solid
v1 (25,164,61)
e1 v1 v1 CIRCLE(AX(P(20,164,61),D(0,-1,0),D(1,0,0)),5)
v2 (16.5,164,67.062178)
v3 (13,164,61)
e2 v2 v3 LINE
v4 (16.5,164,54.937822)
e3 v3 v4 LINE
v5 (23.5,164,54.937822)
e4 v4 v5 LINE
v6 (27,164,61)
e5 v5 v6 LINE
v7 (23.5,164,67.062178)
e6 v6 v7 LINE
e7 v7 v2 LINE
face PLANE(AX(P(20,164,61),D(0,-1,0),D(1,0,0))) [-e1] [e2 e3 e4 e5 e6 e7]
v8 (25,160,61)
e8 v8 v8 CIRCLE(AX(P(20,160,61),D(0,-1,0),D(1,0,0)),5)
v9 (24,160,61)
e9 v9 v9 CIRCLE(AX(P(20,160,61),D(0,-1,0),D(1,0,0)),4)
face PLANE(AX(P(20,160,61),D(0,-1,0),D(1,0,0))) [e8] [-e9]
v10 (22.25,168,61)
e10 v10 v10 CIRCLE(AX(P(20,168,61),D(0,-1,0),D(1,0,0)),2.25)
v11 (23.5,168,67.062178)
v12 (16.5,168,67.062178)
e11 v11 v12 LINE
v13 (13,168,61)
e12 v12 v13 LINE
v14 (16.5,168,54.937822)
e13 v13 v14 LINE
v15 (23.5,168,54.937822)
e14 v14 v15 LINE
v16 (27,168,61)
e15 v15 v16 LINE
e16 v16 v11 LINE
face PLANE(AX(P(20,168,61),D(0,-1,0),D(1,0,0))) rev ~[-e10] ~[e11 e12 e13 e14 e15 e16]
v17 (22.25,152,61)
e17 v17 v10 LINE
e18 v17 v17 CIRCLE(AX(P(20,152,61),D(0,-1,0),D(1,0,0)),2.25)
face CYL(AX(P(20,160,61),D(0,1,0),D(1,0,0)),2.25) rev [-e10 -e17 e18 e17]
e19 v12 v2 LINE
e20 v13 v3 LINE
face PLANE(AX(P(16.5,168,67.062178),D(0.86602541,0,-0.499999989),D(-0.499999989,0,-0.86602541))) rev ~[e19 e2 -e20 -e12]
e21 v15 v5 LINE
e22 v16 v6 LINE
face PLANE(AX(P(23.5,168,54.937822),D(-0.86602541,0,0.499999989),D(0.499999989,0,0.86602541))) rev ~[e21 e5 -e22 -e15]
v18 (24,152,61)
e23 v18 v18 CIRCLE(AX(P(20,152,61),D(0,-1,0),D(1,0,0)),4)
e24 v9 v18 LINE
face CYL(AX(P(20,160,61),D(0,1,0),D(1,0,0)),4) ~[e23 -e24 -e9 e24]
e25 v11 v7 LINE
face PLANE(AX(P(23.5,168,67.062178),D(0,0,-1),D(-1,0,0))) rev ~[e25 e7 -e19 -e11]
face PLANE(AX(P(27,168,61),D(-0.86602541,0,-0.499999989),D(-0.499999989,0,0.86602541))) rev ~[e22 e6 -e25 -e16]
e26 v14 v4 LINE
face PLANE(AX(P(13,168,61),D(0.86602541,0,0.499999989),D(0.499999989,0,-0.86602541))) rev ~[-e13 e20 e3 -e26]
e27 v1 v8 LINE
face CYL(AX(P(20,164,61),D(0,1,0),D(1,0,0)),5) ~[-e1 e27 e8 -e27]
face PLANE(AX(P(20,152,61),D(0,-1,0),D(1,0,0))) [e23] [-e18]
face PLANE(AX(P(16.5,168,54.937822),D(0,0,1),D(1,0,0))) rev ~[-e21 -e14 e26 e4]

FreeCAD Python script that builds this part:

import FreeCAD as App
import Part
import Sketcher
from FreeCAD import Vector
Q = App.Units.Quantity


def add_polygon(sketch, points):
    """Adds a closed chain of lines whose ends are joined by coincident constraints."""
    first, n = sketch.GeometryCount, len(points)
    for a, b in zip(points, points[1:] + points[:1]):
        sketch.addGeometry(Part.LineSegment(App.Vector(*a, 0), App.Vector(*b, 0)), False)
    for i in range(n):
        sketch.addConstraint(Sketcher.Constraint("Coincident", first + i, 2, first + (i + 1) % n, 1))

doc = App.newDocument("Part")
params = doc.addObject("Spreadsheet::Sheet", "Params")
for row, (alias, value) in enumerate([
    ("sketch1_diameter", "4.5 mm"),
    ("sketch1_width", "7 mm"),
    ("sketch1_length", "7 mm"),
    ("pad1_length", "4 mm"),
    ("sketch2_diameter", "10 mm"),
    ("sketch2_diameter2", "4.5 mm"),
    ("pad2_length", "4 mm"),
    ("sketch3_diameter", "8 mm"),
    ("sketch3_diameter2", "4.5 mm"),
    ("pad3_length", "8 mm"),
], start=1):
    params.set(f"A{row}", alias)
    params.set(f"B{row}", "=" + value)
    params.setAlias(f"B{row}", alias)

body = doc.addObject("PartDesign::Body", "Body")

sketch1 = doc.addObject("Sketcher::SketchObject", "Sketch")
body.addObject(sketch1)
sketch1.AttachmentSupport = (doc.XZ_Plane, [""])
sketch1.MapMode = "FlatFace"
add_polygon(sketch1, [(7, 0), (3.5, 6.1), (-3.5, 6.1), (-7, 0), (-3.5, -6.1), (3.5, -6.1)])
sketch1.addGeometry(Part.Circle(Vector(0, 0, 0), Vector(0, 0, 1), 2.2), False)
sketch1.addConstraint(Sketcher.Constraint("Horizontal", 1))
sketch1.addConstraint(Sketcher.Constraint("Horizontal", 4))
sketch1.addConstraint(Sketcher.Constraint("Coincident", 6, 3, -1, 1))
sketch1.addConstraint(Sketcher.Constraint("Symmetric", 0, 2, 3, 2, -1, 1))
sketch1.addConstraint(Sketcher.Constraint("Symmetric", 2, 2, 5, 2, -1, 1))
sketch1.addConstraint(Sketcher.Constraint("PointOnObject", 2, 2, -1))
sketch1.addConstraint(Sketcher.Constraint("Parallel", 2, 5))
sketch1.addConstraint(Sketcher.Constraint("Vertical", 1, 2, 3, 2))
sketch1.addConstraint(Sketcher.Constraint("Diameter", 6, 4.5))
sketch1.addConstraint(Sketcher.Constraint("DistanceX", 1, 2, 1, 1, 7.0))
sketch1.addConstraint(Sketcher.Constraint("Angle", 0, Q("119.999999 deg")))
sketch1.addConstraint(Sketcher.Constraint("Distance", 0, 7.0))
sketch1.setExpression("Constraints[14]", "Params.sketch1_diameter")
sketch1.setExpression("Constraints[15]", "Params.sketch1_width")
sketch1.setExpression("Constraints[17]", "Params.sketch1_length")
pad1 = doc.addObject("PartDesign::Pad", "Pad")
body.addObject(pad1)
pad1.Profile = sketch1
pad1.setExpression("Length", "Params.pad1_length")

sketch2 = doc.addObject("Sketcher::SketchObject", "Sketch001")
body.addObject(sketch2)
sketch2.AttachmentSupport = (doc.XZ_Plane, [""])
sketch2.MapMode = "FlatFace"
sketch2.AttachmentOffset = App.Placement(Vector(0, 0, 4), App.Rotation())
sketch2.addGeometry(Part.Circle(Vector(0, 0, 0), Vector(0, 0, 1), 5), False)
sketch2.addGeometry(Part.Circle(Vector(0, 0, 0), Vector(0, 0, 1), 2.2), False)
sketch2.addConstraint(Sketcher.Constraint("Coincident", 0, 3, -1, 1))
sketch2.addConstraint(Sketcher.Constraint("Coincident", 1, 3, -1, 1))
sketch2.addConstraint(Sketcher.Constraint("Diameter", 0, 10.0))
sketch2.addConstraint(Sketcher.Constraint("Diameter", 1, 4.5))
sketch2.setExpression("Constraints[2]", "Params.sketch2_diameter")
sketch2.setExpression("Constraints[3]", "Params.sketch2_diameter2")
pad2 = doc.addObject("PartDesign::Pad", "Pad001")
body.addObject(pad2)
pad2.Profile = sketch2
pad2.setExpression("Length", "Params.pad2_length")

sketch3 = doc.addObject("Sketcher::SketchObject", "Sketch002")
body.addObject(sketch3)
sketch3.AttachmentSupport = (doc.XZ_Plane, [""])
sketch3.MapMode = "FlatFace"
sketch3.AttachmentOffset = App.Placement(Vector(0, 0, 8), App.Rotation())
sketch3.addGeometry(Part.Circle(Vector(0, 0, 0), Vector(0, 0, 1), 4), False)
sketch3.addGeometry(Part.Circle(Vector(0, 0, 0), Vector(0, 0, 1), 2.2), False)
sketch3.addConstraint(Sketcher.Constraint("Coincident", 0, 3, -1, 1))
sketch3.addConstraint(Sketcher.Constraint("Coincident", 1, 3, -1, 1))
sketch3.addConstraint(Sketcher.Constraint("Diameter", 0, 8.0))
sketch3.addConstraint(Sketcher.Constraint("Diameter", 1, 4.5))
sketch3.setExpression("Constraints[2]", "Params.sketch3_diameter")
sketch3.setExpression("Constraints[3]", "Params.sketch3_diameter2")
pad3 = doc.addObject("PartDesign::Pad", "Pad002")
body.addObject(pad3)
pad3.Profile = sketch3
pad3.setExpression("Length", "Params.pad3_length")
body2 = doc.addObject("PartDesign::Body", "Body001")
doc.recompute()

body.Placement = App.Placement(Vector(20, 168, 61), App.Rotation(Vector(0, 0, 1), 0))
boolean = doc.addObject("PartDesign::Boolean", "Boolean")
body2.addObject(boolean)
boolean.Type = "Fuse"
boolean.addObjects([body])

doc.recompute()
